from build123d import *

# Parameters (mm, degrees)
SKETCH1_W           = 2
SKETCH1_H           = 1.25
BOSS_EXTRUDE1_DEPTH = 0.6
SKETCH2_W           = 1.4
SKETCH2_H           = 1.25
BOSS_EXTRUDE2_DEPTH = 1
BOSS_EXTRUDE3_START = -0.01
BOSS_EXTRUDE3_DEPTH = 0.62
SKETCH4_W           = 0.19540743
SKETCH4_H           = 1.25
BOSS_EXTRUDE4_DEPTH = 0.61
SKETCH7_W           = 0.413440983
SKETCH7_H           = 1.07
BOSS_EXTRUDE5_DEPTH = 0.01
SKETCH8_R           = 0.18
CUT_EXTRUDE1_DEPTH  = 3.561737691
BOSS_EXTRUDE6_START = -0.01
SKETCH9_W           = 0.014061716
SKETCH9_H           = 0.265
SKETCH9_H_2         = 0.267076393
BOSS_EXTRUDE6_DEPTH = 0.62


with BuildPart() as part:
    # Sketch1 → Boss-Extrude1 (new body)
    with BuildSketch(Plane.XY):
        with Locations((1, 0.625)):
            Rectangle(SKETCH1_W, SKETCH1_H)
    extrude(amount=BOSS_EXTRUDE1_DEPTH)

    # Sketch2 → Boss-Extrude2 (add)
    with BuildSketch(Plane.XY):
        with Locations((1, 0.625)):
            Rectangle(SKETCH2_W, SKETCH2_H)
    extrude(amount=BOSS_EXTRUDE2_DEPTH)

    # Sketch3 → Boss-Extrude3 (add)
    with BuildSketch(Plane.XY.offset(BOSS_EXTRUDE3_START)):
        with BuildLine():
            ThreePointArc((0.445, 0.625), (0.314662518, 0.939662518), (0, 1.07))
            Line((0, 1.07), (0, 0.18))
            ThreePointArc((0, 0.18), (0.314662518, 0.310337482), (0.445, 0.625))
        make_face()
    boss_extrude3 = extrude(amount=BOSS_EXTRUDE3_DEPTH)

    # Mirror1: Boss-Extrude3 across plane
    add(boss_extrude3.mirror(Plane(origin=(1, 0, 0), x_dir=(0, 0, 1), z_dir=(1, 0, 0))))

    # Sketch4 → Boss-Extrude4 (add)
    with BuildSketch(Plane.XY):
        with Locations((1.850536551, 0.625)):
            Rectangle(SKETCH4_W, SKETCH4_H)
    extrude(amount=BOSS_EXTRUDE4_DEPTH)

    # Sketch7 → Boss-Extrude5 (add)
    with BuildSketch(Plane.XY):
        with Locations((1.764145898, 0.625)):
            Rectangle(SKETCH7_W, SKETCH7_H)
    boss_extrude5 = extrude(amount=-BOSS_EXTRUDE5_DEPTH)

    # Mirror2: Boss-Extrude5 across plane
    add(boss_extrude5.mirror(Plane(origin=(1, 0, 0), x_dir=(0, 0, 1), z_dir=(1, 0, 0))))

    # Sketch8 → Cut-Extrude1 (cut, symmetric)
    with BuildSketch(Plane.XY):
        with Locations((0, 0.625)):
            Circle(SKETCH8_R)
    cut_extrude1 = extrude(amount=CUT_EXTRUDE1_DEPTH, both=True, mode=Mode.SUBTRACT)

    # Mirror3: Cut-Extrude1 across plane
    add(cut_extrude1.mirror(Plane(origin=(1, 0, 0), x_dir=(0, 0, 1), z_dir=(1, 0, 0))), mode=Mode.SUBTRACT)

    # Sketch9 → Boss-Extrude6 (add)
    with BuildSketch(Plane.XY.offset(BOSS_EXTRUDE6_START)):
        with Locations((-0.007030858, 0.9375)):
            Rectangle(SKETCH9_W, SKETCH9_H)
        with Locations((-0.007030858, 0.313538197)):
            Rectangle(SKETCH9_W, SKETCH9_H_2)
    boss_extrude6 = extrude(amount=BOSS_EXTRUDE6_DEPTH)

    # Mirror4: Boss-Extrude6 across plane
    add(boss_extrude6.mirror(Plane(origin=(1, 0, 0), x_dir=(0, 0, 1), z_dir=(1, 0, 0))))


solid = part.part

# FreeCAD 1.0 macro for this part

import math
import FreeCAD as App
import Part
import Sketcher

doc = App.newDocument("Part")
body = doc.addObject("PartDesign::Body", "Body")

# Sketch on XY plane
sketch1 = body.newObject("Sketcher::SketchObject", "Sketch")
sketch1.AttachmentSupport = (doc.getObject("XY_Plane"), [""])
sketch1.MapMode = "FlatFace"
sketch1.addGeometry(Part.LineSegment(App.Vector(0, 1.25, 0), App.Vector(0, 0, 0)), False)
sketch1.addGeometry(Part.LineSegment(App.Vector(0, 0, 0), App.Vector(2, 0, 0)), False)
sketch1.addGeometry(Part.LineSegment(App.Vector(2, 0, 0), App.Vector(2, 1.25, 0)), False)
sketch1.addGeometry(Part.LineSegment(App.Vector(2, 1.25, 0), App.Vector(0, 1.25, 0)), False)
sketch1.addConstraint(Sketcher.Constraint("Coincident", 0, 2, 1, 1))
sketch1.addConstraint(Sketcher.Constraint("Coincident", 1, 2, 2, 1))
sketch1.addConstraint(Sketcher.Constraint("Coincident", 2, 2, 3, 1))
sketch1.addConstraint(Sketcher.Constraint("Coincident", 3, 2, 0, 1))
sketch1.addConstraint(Sketcher.Constraint("Vertical", 0))
sketch1.addConstraint(Sketcher.Constraint("Horizontal", 1))
sketch1.addConstraint(Sketcher.Constraint("Vertical", 2))
sketch1.addConstraint(Sketcher.Constraint("Horizontal", 3))
sketch1.addConstraint(Sketcher.Constraint("Coincident", 0, 2, -1, 1))
sketch1.addConstraint(Sketcher.Constraint("DistanceX", 1, 1, 1, 2, 2.0))
sketch1.addConstraint(Sketcher.Constraint("DistanceY", 0, 2, 0, 1, 1.25))
pad1 = body.newObject("PartDesign::Pad", "Pad")
pad1.Profile = sketch1
pad1.Length = 0.6

# Sketch on XY plane
sketch2 = body.newObject("Sketcher::SketchObject", "Sketch001")
sketch2.AttachmentSupport = (doc.getObject("XY_Plane"), [""])
sketch2.MapMode = "FlatFace"
sketch2.addGeometry(Part.LineSegment(App.Vector(0.3, 1.25, 0), App.Vector(0.3, 0, 0)), False)
sketch2.addGeometry(Part.LineSegment(App.Vector(0.3, 0, 0), App.Vector(1.7, 0, 0)), False)
sketch2.addGeometry(Part.LineSegment(App.Vector(1.7, 0, 0), App.Vector(1.7, 1.25, 0)), False)
sketch2.addGeometry(Part.LineSegment(App.Vector(1.7, 1.25, 0), App.Vector(0.3, 1.25, 0)), False)
sketch2.addConstraint(Sketcher.Constraint("Coincident", 0, 2, 1, 1))
sketch2.addConstraint(Sketcher.Constraint("Coincident", 1, 2, 2, 1))
sketch2.addConstraint(Sketcher.Constraint("Coincident", 2, 2, 3, 1))
sketch2.addConstraint(Sketcher.Constraint("Coincident", 3, 2, 0, 1))
sketch2.addConstraint(Sketcher.Constraint("Vertical", 0))
sketch2.addConstraint(Sketcher.Constraint("Horizontal", 1))
sketch2.addConstraint(Sketcher.Constraint("Vertical", 2))
sketch2.addConstraint(Sketcher.Constraint("Horizontal", 3))
sketch2.addConstraint(Sketcher.Constraint("PointOnObject", 0, 2, -1))
sketch2.addConstraint(Sketcher.Constraint("DistanceX", 1, 1, 1, 2, 1.4))
sketch2.addConstraint(Sketcher.Constraint("DistanceY", 0, 2, 0, 1, 1.25))
sketch2.addConstraint(Sketcher.Constraint("DistanceX", -1, 1, 0, 2, 0.3))
pad2 = body.newObject("PartDesign::Pad", "Pad001")
pad2.Profile = sketch2
pad2.Length = 1

# Sketch on XY plane
sketch3 = body.newObject("Sketcher::SketchObject", "Sketch002")
sketch3.AttachmentSupport = (doc.getObject("XY_Plane"), [""])
sketch3.MapMode = "FlatFace"
sketch3.AttachmentOffset = App.Placement(App.Vector(0, 0, -0.01), App.Rotation())
sketch3.addGeometry(Part.ArcOfCircle(Part.Circle(App.Vector(0, 0.625, 0), App.Vector(0, 0, 1), 0.445), math.radians(0), math.radians(90)), False)
sketch3.addGeometry(Part.LineSegment(App.Vector(0, 1.07, 0), App.Vector(0, 0.18, 0)), False)
sketch3.addGeometry(Part.ArcOfCircle(Part.Circle(App.Vector(0, 0.625, 0), App.Vector(0, 0, 1), 0.445), math.radians(-90), math.radians(0)), False)
sketch3.addConstraint(Sketcher.Constraint("Coincident", 0, 2, 1, 1))
sketch3.addConstraint(Sketcher.Constraint("Coincident", 1, 2, 2, 1))
sketch3.addConstraint(Sketcher.Constraint("Tangent", 2, 2, 0, 1))
sketch3.addConstraint(Sketcher.Constraint("Vertical", 1))
sketch3.addConstraint(Sketcher.Constraint("Equal", 0, 2))
sketch3.addConstraint(Sketcher.Constraint("PointOnObject", 0, 3, -2))
sketch3.addConstraint(Sketcher.Constraint("PointOnObject", 0, 2, -2))
sketch3.addConstraint(Sketcher.Constraint("Horizontal", 0, 3, 2, 2))
sketch3.addConstraint(Sketcher.Constraint("Radius", 0, 0.445))
sketch3.addConstraint(Sketcher.Constraint("DistanceY", -1, 1, 0, 2, 1.07))
pad3 = body.newObject("PartDesign::Pad", "Pad002")
pad3.Profile = sketch3
pad3.Length = 0.62
doc.recompute()

datumplane = body.newObject("PartDesign::Plane", "DatumPlane")
datumplane.AttachmentSupport = (doc.getObject("YZ_Plane"), [""])
datumplane.MapMode = "FlatFace"
datumplane.AttachmentOffset = App.Placement(App.Vector(0, 0, 1), App.Rotation())
mirrored = body.newObject("PartDesign::Mirrored", "Mirrored")
mirrored.Originals = [pad3]
mirrored.MirrorPlane = (datumplane, [""])
body.Tip = mirrored

# Sketch on XY plane
sketch4 = body.newObject("Sketcher::SketchObject", "Sketch003")
sketch4.AttachmentSupport = (doc.getObject("XY_Plane"), [""])
sketch4.MapMode = "FlatFace"
sketch4.addGeometry(Part.LineSegment(App.Vector(1.752833, 1.25, 0), App.Vector(1.752833, 0, 0)), False)
sketch4.addGeometry(Part.LineSegment(App.Vector(1.752833, 0, 0), App.Vector(1.94824, 0, 0)), False)
sketch4.addGeometry(Part.LineSegment(App.Vector(1.94824, 0, 0), App.Vector(1.94824, 1.25, 0)), False)
sketch4.addGeometry(Part.LineSegment(App.Vector(1.94824, 1.25, 0), App.Vector(1.752833, 1.25, 0)), False)
sketch4.addConstraint(Sketcher.Constraint("Coincident", 0, 2, 1, 1))
sketch4.addConstraint(Sketcher.Constraint("Coincident", 1, 2, 2, 1))
sketch4.addConstraint(Sketcher.Constraint("Coincident", 2, 2, 3, 1))
sketch4.addConstraint(Sketcher.Constraint("Coincident", 3, 2, 0, 1))
sketch4.addConstraint(Sketcher.Constraint("Vertical", 0))
sketch4.addConstraint(Sketcher.Constraint("Horizontal", 1))
sketch4.addConstraint(Sketcher.Constraint("Vertical", 2))
sketch4.addConstraint(Sketcher.Constraint("Horizontal", 3))
sketch4.addConstraint(Sketcher.Constraint("PointOnObject", 0, 2, -1))
sketch4.addConstraint(Sketcher.Constraint("DistanceY", 0, 2, 0, 1, 1.25))
sketch4.addConstraint(Sketcher.Constraint("DistanceX", 1, 1, 1, 2, 0.195407))
sketch4.addConstraint(Sketcher.Constraint("DistanceX", -1, 1, 1, 2, 1.94824))
pad4 = body.newObject("PartDesign::Pad", "Pad003")
pad4.Profile = sketch4
pad4.Length = 0.61

# Sketch on XY plane
sketch5 = body.newObject("Sketcher::SketchObject", "Sketch004")
sketch5.AttachmentSupport = (doc.getObject("XY_Plane"), [""])
sketch5.MapMode = "FlatFace"
sketch5.addGeometry(Part.LineSegment(App.Vector(1.557425, 1.16, 0), App.Vector(1.557425, 0.09, 0)), False)
sketch5.addGeometry(Part.LineSegment(App.Vector(1.557425, 0.09, 0), App.Vector(1.970866, 0.09, 0)), False)
sketch5.addGeometry(Part.LineSegment(App.Vector(1.970866, 0.09, 0), App.Vector(1.970866, 1.16, 0)), False)
sketch5.addGeometry(Part.LineSegment(App.Vector(1.970866, 1.16, 0), App.Vector(1.557425, 1.16, 0)), False)
sketch5.addConstraint(Sketcher.Constraint("Coincident", 0, 2, 1, 1))
sketch5.addConstraint(Sketcher.Constraint("Coincident", 1, 2, 2, 1))
sketch5.addConstraint(Sketcher.Constraint("Coincident", 2, 2, 3, 1))
sketch5.addConstraint(Sketcher.Constraint("Coincident", 3, 2, 0, 1))
sketch5.addConstraint(Sketcher.Constraint("Vertical", 0))
sketch5.addConstraint(Sketcher.Constraint("Horizontal", 1))
sketch5.addConstraint(Sketcher.Constraint("Vertical", 2))
sketch5.addConstraint(Sketcher.Constraint("Horizontal", 3))
sketch5.addConstraint(Sketcher.Constraint("DistanceY", 0, 2, 0, 1, 1.07))
sketch5.addConstraint(Sketcher.Constraint("DistanceY", -1, 1, 0, 2, 0.09))
sketch5.addConstraint(Sketcher.Constraint("DistanceX", 1, 1, 1, 2, 0.413441))
sketch5.addConstraint(Sketcher.Constraint("DistanceX", -1, 1, 0, 2, 1.557425))
pad5 = body.newObject("PartDesign::Pad", "Pad004")
pad5.Profile = sketch5
pad5.Length = 0.01
pad5.Reversed = True
doc.recompute()

datumplane2 = body.newObject("PartDesign::Plane", "DatumPlane001")
datumplane2.AttachmentSupport = (doc.getObject("YZ_Plane"), [""])
datumplane2.MapMode = "FlatFace"
datumplane2.AttachmentOffset = App.Placement(App.Vector(0, 0, 1), App.Rotation())
mirrored2 = body.newObject("PartDesign::Mirrored", "Mirrored001")
mirrored2.Originals = [pad5]
mirrored2.MirrorPlane = (datumplane2, [""])
body.Tip = mirrored2

# Sketch on XY plane
sketch6 = body.newObject("Sketcher::SketchObject", "Sketch005")
sketch6.AttachmentSupport = (doc.getObject("XY_Plane"), [""])
sketch6.MapMode = "FlatFace"
sketch6.addGeometry(Part.Circle(App.Vector(0, 0.625, 0), App.Vector(0, 0, 1), 0.18), False)
sketch6.addConstraint(Sketcher.Constraint("PointOnObject", 0, 3, -2))
sketch6.addConstraint(Sketcher.Constraint("Diameter", 0, 0.36))
sketch6.addConstraint(Sketcher.Constraint("DistanceY", -1, 1, 0, 3, 0.625))
pocket1 = body.newObject("PartDesign::Pocket", "Pocket")
pocket1.Profile = sketch6
pocket1.Length = 7.123475
pocket1.Midplane = True
doc.recompute()

datumplane3 = body.newObject("PartDesign::Plane", "DatumPlane002")
datumplane3.AttachmentSupport = (doc.getObject("YZ_Plane"), [""])
datumplane3.MapMode = "FlatFace"
datumplane3.AttachmentOffset = App.Placement(App.Vector(0, 0, 1), App.Rotation())
mirrored3 = body.newObject("PartDesign::Mirrored", "Mirrored002")
mirrored3.Originals = [pocket1]
mirrored3.MirrorPlane = (datumplane3, [""])
body.Tip = mirrored3

# Sketch on XY plane
sketch7 = body.newObject("Sketcher::SketchObject", "Sketch006")
sketch7.AttachmentSupport = (doc.getObject("XY_Plane"), [""])
sketch7.MapMode = "FlatFace"
sketch7.AttachmentOffset = App.Placement(App.Vector(0, 0, -0.01), App.Rotation())
sketch7.addGeometry(Part.LineSegment(App.Vector(-0.014062, 1.07, 0), App.Vector(-0.014062, 0.805, 0)), False)
sketch7.addGeometry(Part.LineSegment(App.Vector(-0.014062, 0.805, 0), App.Vector(0, 0.805, 0)), False)
sketch7.addGeometry(Part.LineSegment(App.Vector(0, 0.805, 0), App.Vector(0, 1.07, 0)), False)
sketch7.addGeometry(Part.LineSegment(App.Vector(0, 1.07, 0), App.Vector(-0.014062, 1.07, 0)), False)
sketch7.addGeometry(Part.LineSegment(App.Vector(-0.014062, 0.447076, 0), App.Vector(-0.014062, 0.18, 0)), False)
sketch7.addGeometry(Part.LineSegment(App.Vector(-0.014062, 0.18, 0), App.Vector(0, 0.18, 0)), False)
sketch7.addGeometry(Part.LineSegment(App.Vector(0, 0.18, 0), App.Vector(0, 0.447076, 0)), False)
sketch7.addGeometry(Part.LineSegment(App.Vector(0, 0.447076, 0), App.Vector(-0.014062, 0.447076, 0)), False)
sketch7.addConstraint(Sketcher.Constraint("Coincident", 0, 2, 1, 1))
sketch7.addConstraint(Sketcher.Constraint("Coincident", 1, 2, 2, 1))
sketch7.addConstraint(Sketcher.Constraint("Coincident", 2, 2, 3, 1))
sketch7.addConstraint(Sketcher.Constraint("Coincident", 3, 2, 0, 1))
sketch7.addConstraint(Sketcher.Constraint("Coincident", 4, 2, 5, 1))
sketch7.addConstraint(Sketcher.Constraint("Coincident", 5, 2, 6, 1))
sketch7.addConstraint(Sketcher.Constraint("Coincident", 6, 2, 7, 1))
sketch7.addConstraint(Sketcher.Constraint("Coincident", 7, 2, 4, 1))
sketch7.addConstraint(Sketcher.Constraint("Vertical", 0))
sketch7.addConstraint(Sketcher.Constraint("Horizontal", 1))
sketch7.addConstraint(Sketcher.Constraint("Vertical", 2))
sketch7.addConstraint(Sketcher.Constraint("Horizontal", 3))
sketch7.addConstraint(Sketcher.Constraint("Vertical", 4))
sketch7.addConstraint(Sketcher.Constraint("Horizontal", 5))
sketch7.addConstraint(Sketcher.Constraint("Vertical", 6))
sketch7.addConstraint(Sketcher.Constraint("Horizontal", 7))
sketch7.addConstraint(Sketcher.Constraint("PointOnObject", 1, 2, -2))
sketch7.addConstraint(Sketcher.Constraint("PointOnObject", 5, 2, -2))
sketch7.addConstraint(Sketcher.Constraint("Vertical", 3, 2, 4, 2))
sketch7.addConstraint(Sketcher.Constraint("DistanceY", 0, 2, 0, 1, 0.265))
sketch7.addConstraint(Sketcher.Constraint("DistanceY", -1, 1, 2, 2, 1.07))
sketch7.addConstraint(Sketcher.Constraint("DistanceY", -1, 1, 4, 2, 0.18))
sketch7.addConstraint(Sketcher.Constraint("DistanceX", 1, 1, 1, 2, 0.014062))
sketch7.addConstraint(Sketcher.Constraint("DistanceY", 4, 2, 4, 1, 0.267076))
pad6 = body.newObject("PartDesign::Pad", "Pad005")
pad6.Profile = sketch7
pad6.Length = 0.62
doc.recompute()

datumplane4 = body.newObject("PartDesign::Plane", "DatumPlane003")
datumplane4.AttachmentSupport = (doc.getObject("YZ_Plane"), [""])
datumplane4.MapMode = "FlatFace"
datumplane4.AttachmentOffset = App.Placement(App.Vector(0, 0, 1), App.Rotation())
mirrored4 = body.newObject("PartDesign::Mirrored", "Mirrored003")
mirrored4.Originals = [pad6]
mirrored4.MirrorPlane = (datumplane4, [""])
body.Tip = mirrored4

doc.recompute()
